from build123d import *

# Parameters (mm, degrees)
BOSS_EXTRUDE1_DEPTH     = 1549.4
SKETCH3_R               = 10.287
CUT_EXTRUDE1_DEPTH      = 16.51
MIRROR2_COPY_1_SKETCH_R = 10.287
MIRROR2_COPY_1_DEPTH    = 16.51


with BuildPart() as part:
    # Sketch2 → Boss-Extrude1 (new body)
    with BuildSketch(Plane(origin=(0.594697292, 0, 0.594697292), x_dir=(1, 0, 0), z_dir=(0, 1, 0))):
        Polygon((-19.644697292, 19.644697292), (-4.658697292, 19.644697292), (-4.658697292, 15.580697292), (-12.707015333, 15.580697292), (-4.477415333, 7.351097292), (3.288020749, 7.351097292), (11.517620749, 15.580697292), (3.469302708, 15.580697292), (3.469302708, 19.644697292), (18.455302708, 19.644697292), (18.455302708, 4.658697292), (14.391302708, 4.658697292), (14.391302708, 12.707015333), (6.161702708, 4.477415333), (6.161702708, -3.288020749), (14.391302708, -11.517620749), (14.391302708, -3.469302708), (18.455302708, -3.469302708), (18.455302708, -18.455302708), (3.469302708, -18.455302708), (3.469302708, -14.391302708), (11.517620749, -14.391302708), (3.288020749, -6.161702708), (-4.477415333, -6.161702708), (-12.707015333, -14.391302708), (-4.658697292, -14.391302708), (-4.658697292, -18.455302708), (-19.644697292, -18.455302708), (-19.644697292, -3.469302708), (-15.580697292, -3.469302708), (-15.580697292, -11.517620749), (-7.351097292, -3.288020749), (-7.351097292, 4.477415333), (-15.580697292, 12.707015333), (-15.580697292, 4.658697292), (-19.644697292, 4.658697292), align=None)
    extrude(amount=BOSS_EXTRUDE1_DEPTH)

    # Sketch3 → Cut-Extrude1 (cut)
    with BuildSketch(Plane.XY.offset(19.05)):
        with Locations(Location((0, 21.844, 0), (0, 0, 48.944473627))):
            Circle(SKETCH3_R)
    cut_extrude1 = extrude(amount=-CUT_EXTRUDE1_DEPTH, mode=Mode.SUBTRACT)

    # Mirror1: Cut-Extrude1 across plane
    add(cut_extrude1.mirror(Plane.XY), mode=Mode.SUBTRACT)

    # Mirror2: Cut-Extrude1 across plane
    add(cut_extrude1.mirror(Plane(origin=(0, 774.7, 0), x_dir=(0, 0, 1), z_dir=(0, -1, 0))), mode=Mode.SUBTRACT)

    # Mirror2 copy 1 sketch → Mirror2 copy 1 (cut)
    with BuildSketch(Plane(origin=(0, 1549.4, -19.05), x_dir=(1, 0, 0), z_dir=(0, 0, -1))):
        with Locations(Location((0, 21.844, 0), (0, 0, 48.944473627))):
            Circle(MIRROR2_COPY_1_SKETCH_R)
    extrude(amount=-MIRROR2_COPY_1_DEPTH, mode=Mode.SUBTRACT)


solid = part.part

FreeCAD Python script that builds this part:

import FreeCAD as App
import Part
import Sketcher
Q = App.Units.Quantity

doc = App.newDocument("Part")
body = doc.addObject("PartDesign::Body", "Body")

# Sketch on XZ plane
sketch1 = doc.addObject("Sketcher::SketchObject", "Sketch")
body.addObject(sketch1)
sketch1.AttachmentSupport = (doc.XZ_Plane, [""])
sketch1.MapMode = "FlatFace"
sketch1.addGeometry([
    Part.LineSegment(App.Vector(-4.064, -19.05, 0), App.Vector(-19.05, -19.05, 0)),  # 0
    Part.LineSegment(App.Vector(-19.05, -19.05, 0), App.Vector(-19.05, -4.064, 0)),  # 1
    Part.LineSegment(App.Vector(-19.05, -4.064, 0), App.Vector(-14.986, -4.064, 0)),  # 2
    Part.LineSegment(App.Vector(-14.986, -4.064, 0), App.Vector(-14.986, -12.112318, 0)),  # 3
    Part.LineSegment(App.Vector(-14.986, -12.112318, 0), App.Vector(-6.7564, -3.882718, 0)),  # 4
    Part.LineSegment(App.Vector(-6.7564, -3.882718, 0), App.Vector(-6.7564, 3.882718, 0)),  # 5
    Part.LineSegment(App.Vector(-6.7564, 3.882718, 0), App.Vector(-14.986, 12.112318, 0)),  # 6
    Part.LineSegment(App.Vector(-14.986, 12.112318, 0), App.Vector(-14.986, 4.064, 0)),  # 7
    Part.LineSegment(App.Vector(-14.986, 4.064, 0), App.Vector(-19.05, 4.064, 0)),  # 8
    Part.LineSegment(App.Vector(-19.05, 4.064, 0), App.Vector(-19.05, 19.05, 0)),  # 9
    Part.LineSegment(App.Vector(-19.05, 19.05, 0), App.Vector(-4.064, 19.05, 0)),  # 10
    Part.LineSegment(App.Vector(-4.064, 19.05, 0), App.Vector(-4.064, 14.986, 0)),  # 11
    Part.LineSegment(App.Vector(-4.064, 14.986, 0), App.Vector(-12.112318, 14.986, 0)),  # 12
    Part.LineSegment(App.Vector(-12.112318, 14.986, 0), App.Vector(-3.882718, 6.7564, 0)),  # 13
    Part.LineSegment(App.Vector(-3.882718, 6.7564, 0), App.Vector(3.882718, 6.7564, 0)),  # 14
    Part.LineSegment(App.Vector(3.882718, 6.7564, 0), App.Vector(12.112318, 14.986, 0)),  # 15
    Part.LineSegment(App.Vector(12.112318, 14.986, 0), App.Vector(4.064, 14.986, 0)),  # 16
    Part.LineSegment(App.Vector(4.064, 14.986, 0), App.Vector(4.064, 19.05, 0)),  # 17
    Part.LineSegment(App.Vector(4.064, 19.05, 0), App.Vector(19.05, 19.05, 0)),  # 18
    Part.LineSegment(App.Vector(19.05, 19.05, 0), App.Vector(19.05, 4.064, 0)),  # 19
    Part.LineSegment(App.Vector(19.05, 4.064, 0), App.Vector(14.986, 4.064, 0)),  # 20
    Part.LineSegment(App.Vector(14.986, 4.064, 0), App.Vector(14.986, 12.112318, 0)),  # 21
    Part.LineSegment(App.Vector(14.986, 12.112318, 0), App.Vector(6.7564, 3.882718, 0)),  # 22
    Part.LineSegment(App.Vector(6.7564, 3.882718, 0), App.Vector(6.7564, -3.882718, 0)),  # 23
    Part.LineSegment(App.Vector(6.7564, -3.882718, 0), App.Vector(14.986, -12.112318, 0)),  # 24
    Part.LineSegment(App.Vector(14.986, -12.112318, 0), App.Vector(14.986, -4.064, 0)),  # 25
    Part.LineSegment(App.Vector(14.986, -4.064, 0), App.Vector(19.05, -4.064, 0)),  # 26
    Part.LineSegment(App.Vector(19.05, -4.064, 0), App.Vector(19.05, -19.05, 0)),  # 27
    Part.LineSegment(App.Vector(19.05, -19.05, 0), App.Vector(4.064, -19.05, 0)),  # 28
    Part.LineSegment(App.Vector(4.064, -19.05, 0), App.Vector(4.064, -14.986, 0)),  # 29
    Part.LineSegment(App.Vector(4.064, -14.986, 0), App.Vector(12.112318, -14.986, 0)),  # 30
    Part.LineSegment(App.Vector(12.112318, -14.986, 0), App.Vector(3.882718, -6.7564, 0)),  # 31
    Part.LineSegment(App.Vector(3.882718, -6.7564, 0), App.Vector(-3.882718, -6.7564, 0)),  # 32
    Part.LineSegment(App.Vector(-3.882718, -6.7564, 0), App.Vector(-12.112318, -14.986, 0)),  # 33
    Part.LineSegment(App.Vector(-12.112318, -14.986, 0), App.Vector(-4.064, -14.986, 0)),  # 34
    Part.LineSegment(App.Vector(-4.064, -14.986, 0), App.Vector(-4.064, -19.05, 0)),  # 35
], False)
sketch1.addConstraint([
    Sketcher.Constraint("Coincident", 0, 2, 1, 1),
    Sketcher.Constraint("Coincident", 1, 2, 2, 1),
    Sketcher.Constraint("Coincident", 2, 2, 3, 1),
    Sketcher.Constraint("Coincident", 3, 2, 4, 1),
    Sketcher.Constraint("Coincident", 4, 2, 5, 1),
    Sketcher.Constraint("Coincident", 5, 2, 6, 1),
    Sketcher.Constraint("Coincident", 6, 2, 7, 1),
    Sketcher.Constraint("Coincident", 7, 2, 8, 1),
    Sketcher.Constraint("Coincident", 8, 2, 9, 1),
    Sketcher.Constraint("Coincident", 9, 2, 10, 1),
    Sketcher.Constraint("Coincident", 10, 2, 11, 1),
    Sketcher.Constraint("Coincident", 11, 2, 12, 1),
    Sketcher.Constraint("Coincident", 12, 2, 13, 1),
    Sketcher.Constraint("Coincident", 13, 2, 14, 1),
    Sketcher.Constraint("Coincident", 14, 2, 15, 1),
    Sketcher.Constraint("Coincident", 15, 2, 16, 1),
    Sketcher.Constraint("Coincident", 16, 2, 17, 1),
    Sketcher.Constraint("Coincident", 17, 2, 18, 1),
    Sketcher.Constraint("Coincident", 18, 2, 19, 1),
    Sketcher.Constraint("Coincident", 19, 2, 20, 1),
    Sketcher.Constraint("Coincident", 20, 2, 21, 1),
    Sketcher.Constraint("Coincident", 21, 2, 22, 1),
    Sketcher.Constraint("Coincident", 22, 2, 23, 1),
    Sketcher.Constraint("Coincident", 23, 2, 24, 1),
    Sketcher.Constraint("Coincident", 24, 2, 25, 1),
    Sketcher.Constraint("Coincident", 25, 2, 26, 1),
    Sketcher.Constraint("Coincident", 26, 2, 27, 1),
    Sketcher.Constraint("Coincident", 27, 2, 28, 1),
    Sketcher.Constraint("Coincident", 28, 2, 29, 1),
    Sketcher.Constraint("Coincident", 29, 2, 30, 1),
    Sketcher.Constraint("Coincident", 30, 2, 31, 1),
    Sketcher.Constraint("Coincident", 31, 2, 32, 1),
    Sketcher.Constraint("Coincident", 32, 2, 33, 1),
    Sketcher.Constraint("Coincident", 33, 2, 34, 1),
    Sketcher.Constraint("Coincident", 34, 2, 35, 1),
    Sketcher.Constraint("Coincident", 35, 2, 0, 1),
    Sketcher.Constraint("Horizontal", 0),
    Sketcher.Constraint("Vertical", 1),
    Sketcher.Constraint("Horizontal", 2),
    Sketcher.Constraint("Vertical", 3),
    Sketcher.Constraint("Vertical", 5),
    Sketcher.Constraint("Vertical", 7),
    Sketcher.Constraint("Horizontal", 8),
    Sketcher.Constraint("Vertical", 9),
    Sketcher.Constraint("Horizontal", 10),
    Sketcher.Constraint("Vertical", 11),
    Sketcher.Constraint("Horizontal", 12),
    Sketcher.Constraint("Horizontal", 14),
    Sketcher.Constraint("Horizontal", 16),
    Sketcher.Constraint("Vertical", 17),
    Sketcher.Constraint("Horizontal", 18),
    Sketcher.Constraint("Vertical", 19),
    Sketcher.Constraint("Horizontal", 20),
    Sketcher.Constraint("Vertical", 21),
    Sketcher.Constraint("Vertical", 23),
    Sketcher.Constraint("Vertical", 25),
    Sketcher.Constraint("Horizontal", 26),
    Sketcher.Constraint("Vertical", 27),
    Sketcher.Constraint("Horizontal", 28),
    Sketcher.Constraint("Vertical", 29),
    Sketcher.Constraint("Horizontal", 30),
    Sketcher.Constraint("Horizontal", 32),
    Sketcher.Constraint("Horizontal", 34),
    Sketcher.Constraint("Vertical", 35),
    Sketcher.Constraint("Symmetric", 0, 2, 18, 2, -1, 1),
    Sketcher.Constraint("Symmetric", 2, 2, 20, 2, -1, 1),
    Sketcher.Constraint("Symmetric", 4, 2, 22, 2, -1, 1),
    Sketcher.Constraint("Symmetric", 6, 2, 24, 2, -1, 1),
    Sketcher.Constraint("Symmetric", 8, 2, 26, 2, -1, 1),
    Sketcher.Constraint("Symmetric", 10, 2, 28, 2, -1, 1),
    Sketcher.Constraint("Symmetric", 12, 2, 30, 2, -1, 1),
    Sketcher.Constraint("Symmetric", 13, 2, 31, 2, -1, 1),
    Sketcher.Constraint("Symmetric", 15, 2, 33, 2, -1, 1),
    Sketcher.Constraint("Symmetric", 12, 2, 15, 2, -2),
    Sketcher.Constraint("Symmetric", 10, 2, 17, 2, -2),
    Sketcher.Constraint("Symmetric", 8, 2, 19, 2, -2),
    Sketcher.Constraint("Symmetric", 6, 2, 21, 2, -2),
    Sketcher.Constraint("Perpendicular", 4, 6),
    Sketcher.Constraint("Parallel", 6, 13),
    Sketcher.Constraint("Perpendicular", 13, 15),
    Sketcher.Constraint("Parallel", 15, 22),
    Sketcher.Constraint("Perpendicular", 22, 24),
    Sketcher.Constraint("Perpendicular", 31, 33),
    Sketcher.Constraint("Horizontal", 5, 2, 22, 2),
    Sketcher.Constraint("Vertical", 11, 2, 34, 2),
    Sketcher.Constraint("Equal", 28, 1),
    Sketcher.Constraint("Equal", 34, 3),
    Sketcher.Constraint("Equal", 32, 5),
    Sketcher.Constraint("Equal", 26, 11),
    Sketcher.Constraint("Equal", 6, 13),
    Sketcher.Constraint("DistanceX", 0, 2, 0, 1, Q("0.59 in")),
    Sketcher.Constraint("DistanceX", 2, 1, 2, 2, Q("0.16 in")),
    Sketcher.Constraint("DistanceX", 0, 2, -1, 1, Q("0.75 in")),
    Sketcher.Constraint("DistanceX", 4, 2, -1, 1, Q("0.266 in")),
    Sketcher.Constraint("DistanceX", 12, 2, 12, 1, 8.048318),
])
pad1 = doc.addObject("PartDesign::Pad", "Pad")
body.addObject(pad1)
pad1.Profile = sketch1
pad1.Length = Q("61 in")
pad1.Reversed = True

# Sketch on XY plane
sketch2 = doc.addObject("Sketcher::SketchObject", "Sketch001")
body.addObject(sketch2)
sketch2.AttachmentSupport = (doc.XY_Plane, [""])
sketch2.MapMode = "FlatFace"
sketch2.AttachmentOffset = App.Placement(App.Vector(0, 0, 0.75 * 25.4), App.Rotation())
sketch2.addGeometry(Part.Circle(App.Vector(0, 21.844, 0), App.Vector(0, 0, 1), 10.287), False)
sketch2.addConstraint([
    Sketcher.Constraint("PointOnObject", 0, 3, -2),
    Sketcher.Constraint("Diameter", 0, Q("0.81 in")),
    Sketcher.Constraint("DistanceY", -1, 1, 0, 3, Q("0.86 in")),
])
pocket1 = doc.addObject("PartDesign::Pocket", "Pocket")
body.addObject(pocket1)
pocket1.Profile = sketch2
pocket1.Length = Q("0.65 in")
doc.recompute()

mirrored = doc.addObject("PartDesign::Mirrored", "Mirrored")
body.addObject(mirrored)
mirrored.Originals = [pocket1]
mirrored.MirrorPlane = (doc.XY_Plane, [""])
body.Tip = mirrored
doc.recompute()

datumplane = doc.addObject("PartDesign::Plane", "DatumPlane")
body.addObject(datumplane)
datumplane.AttachmentSupport = (doc.XZ_Plane, [""])
datumplane.MapMode = "FlatFace"
datumplane.AttachmentOffset = App.Placement(App.Vector(0, 0, -30.5 * 25.4), App.Rotation())
mirrored2 = doc.addObject("PartDesign::Mirrored", "Mirrored001")
body.addObject(mirrored2)
mirrored2.Originals = [pocket1]
mirrored2.MirrorPlane = (datumplane, [""])
body.Tip = mirrored2

# Sketch on XY plane
sketch3 = doc.addObject("Sketcher::SketchObject", "Sketch002")
body.addObject(sketch3)
sketch3.AttachmentSupport = (doc.XY_Plane, [""])
sketch3.MapMode = "FlatFace"
sketch3.AttachmentOffset = App.Placement(App.Vector(0, 0, -0.75 * 25.4), App.Rotation())
sketch3.addGeometry(Part.Circle(App.Vector(0, 1527.556, 0), App.Vector(0, 0, 1), 10.287), False)
sketch3.addConstraint([
    Sketcher.Constraint("PointOnObject", 0, 3, -2),
    Sketcher.Constraint("Diameter", 0, Q("0.81 in")),
    Sketcher.Constraint("DistanceY", -1, 1, 0, 3, Q("60.14 in")),
])
pocket2 = doc.addObject("PartDesign::Pocket", "Pocket001")
body.addObject(pocket2)
pocket2.Profile = sketch3
pocket2.Length = Q("0.65 in")
pocket2.Reversed = True

doc.recompute()
